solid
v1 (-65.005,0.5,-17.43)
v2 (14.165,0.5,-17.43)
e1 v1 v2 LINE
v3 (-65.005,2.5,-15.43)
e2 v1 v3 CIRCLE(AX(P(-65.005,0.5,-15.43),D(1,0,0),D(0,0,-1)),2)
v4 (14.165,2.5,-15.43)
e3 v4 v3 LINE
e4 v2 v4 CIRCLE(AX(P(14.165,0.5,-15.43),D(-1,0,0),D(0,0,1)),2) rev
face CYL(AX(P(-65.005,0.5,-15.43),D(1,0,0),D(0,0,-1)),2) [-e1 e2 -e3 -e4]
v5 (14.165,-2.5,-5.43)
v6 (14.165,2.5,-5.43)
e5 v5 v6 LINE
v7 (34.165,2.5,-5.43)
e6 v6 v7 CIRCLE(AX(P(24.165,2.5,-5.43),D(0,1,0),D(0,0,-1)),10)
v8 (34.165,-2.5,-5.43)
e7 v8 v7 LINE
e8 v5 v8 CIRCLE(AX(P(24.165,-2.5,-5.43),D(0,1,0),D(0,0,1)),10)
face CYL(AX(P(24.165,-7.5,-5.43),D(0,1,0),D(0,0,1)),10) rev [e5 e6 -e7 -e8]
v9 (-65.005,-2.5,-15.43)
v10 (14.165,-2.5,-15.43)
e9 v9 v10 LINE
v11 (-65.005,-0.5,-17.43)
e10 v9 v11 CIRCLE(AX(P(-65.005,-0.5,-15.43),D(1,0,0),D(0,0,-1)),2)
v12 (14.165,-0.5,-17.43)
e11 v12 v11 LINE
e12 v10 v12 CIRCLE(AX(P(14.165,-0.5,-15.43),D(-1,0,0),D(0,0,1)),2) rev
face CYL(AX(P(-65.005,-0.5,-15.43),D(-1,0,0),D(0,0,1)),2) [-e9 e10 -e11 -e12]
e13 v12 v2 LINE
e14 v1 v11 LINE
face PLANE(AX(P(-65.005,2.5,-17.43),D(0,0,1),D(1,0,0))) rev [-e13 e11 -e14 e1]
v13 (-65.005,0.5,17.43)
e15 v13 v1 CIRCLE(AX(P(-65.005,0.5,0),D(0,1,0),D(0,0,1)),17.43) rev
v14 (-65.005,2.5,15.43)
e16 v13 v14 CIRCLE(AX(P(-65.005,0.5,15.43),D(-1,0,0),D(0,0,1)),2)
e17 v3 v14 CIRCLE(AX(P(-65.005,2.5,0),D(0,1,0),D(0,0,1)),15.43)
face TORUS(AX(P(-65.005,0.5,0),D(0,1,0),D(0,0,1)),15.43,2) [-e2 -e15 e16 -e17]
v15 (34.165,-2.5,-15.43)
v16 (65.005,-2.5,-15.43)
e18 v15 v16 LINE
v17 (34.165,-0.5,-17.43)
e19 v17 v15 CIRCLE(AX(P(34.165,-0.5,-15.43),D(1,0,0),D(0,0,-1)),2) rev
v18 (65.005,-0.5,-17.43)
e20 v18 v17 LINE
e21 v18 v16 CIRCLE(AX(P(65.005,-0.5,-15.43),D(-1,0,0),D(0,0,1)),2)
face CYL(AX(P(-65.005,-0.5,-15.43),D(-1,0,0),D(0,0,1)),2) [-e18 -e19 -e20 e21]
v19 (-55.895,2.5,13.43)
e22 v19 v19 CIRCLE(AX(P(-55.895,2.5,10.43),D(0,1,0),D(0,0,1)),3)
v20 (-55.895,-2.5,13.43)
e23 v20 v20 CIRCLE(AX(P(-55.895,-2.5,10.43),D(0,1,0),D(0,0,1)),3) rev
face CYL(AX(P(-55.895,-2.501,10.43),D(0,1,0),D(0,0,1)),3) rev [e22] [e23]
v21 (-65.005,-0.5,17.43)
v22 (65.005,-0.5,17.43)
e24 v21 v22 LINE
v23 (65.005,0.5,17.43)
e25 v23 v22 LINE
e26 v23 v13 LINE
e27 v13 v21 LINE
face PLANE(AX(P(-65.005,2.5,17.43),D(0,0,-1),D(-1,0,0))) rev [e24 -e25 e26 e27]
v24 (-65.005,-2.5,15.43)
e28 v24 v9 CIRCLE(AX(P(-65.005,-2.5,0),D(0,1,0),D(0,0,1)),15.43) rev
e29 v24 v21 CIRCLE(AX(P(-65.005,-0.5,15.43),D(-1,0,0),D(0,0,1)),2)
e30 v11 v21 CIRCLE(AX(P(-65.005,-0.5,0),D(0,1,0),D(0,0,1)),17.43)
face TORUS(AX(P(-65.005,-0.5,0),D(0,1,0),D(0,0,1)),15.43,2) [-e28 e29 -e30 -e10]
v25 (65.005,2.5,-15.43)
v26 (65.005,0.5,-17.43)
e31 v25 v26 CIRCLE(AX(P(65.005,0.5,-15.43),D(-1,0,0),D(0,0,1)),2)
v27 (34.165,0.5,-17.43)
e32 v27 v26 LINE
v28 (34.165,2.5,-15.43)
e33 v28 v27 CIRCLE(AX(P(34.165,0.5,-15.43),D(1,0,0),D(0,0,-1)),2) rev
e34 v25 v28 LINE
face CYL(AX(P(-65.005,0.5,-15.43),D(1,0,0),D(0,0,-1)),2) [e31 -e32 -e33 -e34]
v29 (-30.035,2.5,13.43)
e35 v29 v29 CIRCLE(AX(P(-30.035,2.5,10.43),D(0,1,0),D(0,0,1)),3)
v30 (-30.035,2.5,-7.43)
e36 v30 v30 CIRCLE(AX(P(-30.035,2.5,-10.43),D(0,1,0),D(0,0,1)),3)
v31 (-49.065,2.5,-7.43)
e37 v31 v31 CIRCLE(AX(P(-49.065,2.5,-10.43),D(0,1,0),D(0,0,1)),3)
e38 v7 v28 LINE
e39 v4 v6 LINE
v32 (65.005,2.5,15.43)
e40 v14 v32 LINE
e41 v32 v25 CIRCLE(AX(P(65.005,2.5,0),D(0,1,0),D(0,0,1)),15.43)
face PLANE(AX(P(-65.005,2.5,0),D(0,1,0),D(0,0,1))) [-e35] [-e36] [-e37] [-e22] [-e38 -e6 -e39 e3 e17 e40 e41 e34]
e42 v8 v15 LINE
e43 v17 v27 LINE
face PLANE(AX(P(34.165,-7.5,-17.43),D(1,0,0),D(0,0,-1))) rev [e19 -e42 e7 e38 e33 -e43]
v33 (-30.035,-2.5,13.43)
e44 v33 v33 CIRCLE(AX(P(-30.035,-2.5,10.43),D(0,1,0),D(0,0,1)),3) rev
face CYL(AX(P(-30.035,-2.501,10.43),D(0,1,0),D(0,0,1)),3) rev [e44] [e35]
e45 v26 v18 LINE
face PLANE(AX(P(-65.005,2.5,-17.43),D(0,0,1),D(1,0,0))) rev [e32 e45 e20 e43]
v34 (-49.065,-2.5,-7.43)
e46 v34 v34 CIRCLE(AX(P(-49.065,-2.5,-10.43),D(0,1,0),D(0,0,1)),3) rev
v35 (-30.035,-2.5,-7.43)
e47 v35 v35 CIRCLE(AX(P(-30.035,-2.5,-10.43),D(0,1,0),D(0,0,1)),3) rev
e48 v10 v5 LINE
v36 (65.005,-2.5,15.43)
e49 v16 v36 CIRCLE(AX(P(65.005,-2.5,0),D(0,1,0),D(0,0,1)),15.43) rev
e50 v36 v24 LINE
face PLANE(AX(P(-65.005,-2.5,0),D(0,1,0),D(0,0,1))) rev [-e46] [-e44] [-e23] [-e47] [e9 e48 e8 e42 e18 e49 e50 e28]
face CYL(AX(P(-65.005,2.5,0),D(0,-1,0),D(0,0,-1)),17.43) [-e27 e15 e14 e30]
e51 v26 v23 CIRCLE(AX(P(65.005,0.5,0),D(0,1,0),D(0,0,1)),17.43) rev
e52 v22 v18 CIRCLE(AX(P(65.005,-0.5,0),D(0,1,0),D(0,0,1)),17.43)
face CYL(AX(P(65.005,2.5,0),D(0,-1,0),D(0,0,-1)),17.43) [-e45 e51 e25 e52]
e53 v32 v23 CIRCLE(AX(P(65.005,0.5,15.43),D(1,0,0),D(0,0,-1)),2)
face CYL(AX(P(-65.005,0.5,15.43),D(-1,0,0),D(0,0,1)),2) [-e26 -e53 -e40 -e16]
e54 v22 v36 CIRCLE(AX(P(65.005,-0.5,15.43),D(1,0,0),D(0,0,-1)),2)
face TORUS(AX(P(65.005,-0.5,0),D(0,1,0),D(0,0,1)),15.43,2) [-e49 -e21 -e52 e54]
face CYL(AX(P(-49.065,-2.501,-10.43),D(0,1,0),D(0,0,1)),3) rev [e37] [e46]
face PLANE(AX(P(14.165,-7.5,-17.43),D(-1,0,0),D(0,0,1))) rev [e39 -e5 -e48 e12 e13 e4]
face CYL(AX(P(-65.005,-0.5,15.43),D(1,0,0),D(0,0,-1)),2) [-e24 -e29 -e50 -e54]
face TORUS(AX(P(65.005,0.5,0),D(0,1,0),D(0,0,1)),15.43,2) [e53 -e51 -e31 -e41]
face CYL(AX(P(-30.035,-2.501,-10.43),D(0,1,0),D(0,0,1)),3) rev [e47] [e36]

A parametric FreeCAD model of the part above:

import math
import FreeCAD as App
import Part
import Sketcher

V = App.Vector
Q = App.Units.Quantity


def edges_at(feature, points):
    """Names of the edges that pass closest to the given points."""
    edges = feature.Shape.Edges
    near = lambda p: min(range(len(edges)), key=lambda i: edges[i].distToShape(Part.Vertex(*p))[0])
    return sorted({f"Edge{near(p) + 1}" for p in points})

doc = App.newDocument("Part")
body = doc.addObject("PartDesign::Body", "Body")

# Sketch on XZ plane
sketch1 = doc.addObject("Sketcher::SketchObject", "Sketch")
body.addObject(sketch1)
sketch1.AttachmentSupport = (doc.XZ_Plane, [""])
sketch1.MapMode = "FlatFace"
sketch1.addGeometry(Part.LineSegment(V(65, -17, 0), V(-65, -17, 0)), False)
sketch1.addGeometry(Part.ArcOfCircle(Part.Circle(V(-65, 0, 0), V(0, 0, 1), 17), math.radians(90), math.radians(270)), False)
sketch1.addGeometry(Part.LineSegment(V(-65, 17, 0), V(65, 17, 0)), False)
sketch1.addGeometry(Part.ArcOfCircle(Part.Circle(V(65, 0, 0), V(0, 0, 1), 17), math.radians(-90), math.radians(90)), False)
sketch1.addConstraint(Sketcher.Constraint("Tangent", 0, 2, 1, 2))
sketch1.addConstraint(Sketcher.Constraint("Tangent", 1, 1, 2, 1))
sketch1.addConstraint(Sketcher.Constraint("Tangent", 2, 2, 3, 2))
sketch1.addConstraint(Sketcher.Constraint("Tangent", 3, 1, 0, 1))
sketch1.addConstraint(Sketcher.Constraint("Horizontal", 0))
sketch1.addConstraint(Sketcher.Constraint("Horizontal", 2))
sketch1.addConstraint(Sketcher.Constraint("Symmetric", 1, 3, 3, 3, -1, 1))
sketch1.addConstraint(Sketcher.Constraint("Radius", 1, Q("17.43 mm")))
sketch1.addConstraint(Sketcher.Constraint("DistanceX", 0, 2, 0, 1, Q("130.01 mm")))
pad1 = doc.addObject("PartDesign::Pad", "Pad")
body.addObject(pad1)
pad1.Profile = sketch1
pad1.Length = 5
pad1.Midplane = True

# Sketch on XZ plane
sketch2 = doc.addObject("Sketcher::SketchObject", "Sketch001")
body.addObject(sketch2)
sketch2.AttachmentSupport = (doc.XZ_Plane, [""])
sketch2.MapMode = "FlatFace"
sketch2.AttachmentOffset = App.Placement(V(0, 0, -2.5), App.Rotation())
sketch2.addGeometry(Part.Circle(V(-49.1, -10.4, 0), V(0, 0, 1), 3), False)
sketch2.addConstraint(Sketcher.Constraint("Diameter", 0, Q("6 mm")))
sketch2.addConstraint(Sketcher.Constraint("DistanceY", 0, 3, -1, 1, Q("10.43 mm")))
sketch2.addConstraint(Sketcher.Constraint("DistanceX", 0, 3, -1, 1, Q("49.065 mm")))
pocket1 = doc.addObject("PartDesign::Pocket", "Pocket")
body.addObject(pocket1)
pocket1.Profile = sketch2
pocket1.Type = "UpToFirst"
pocket1.Reversed = True

# Sketch on XZ plane
sketch3 = doc.addObject("Sketcher::SketchObject", "Sketch002")
body.addObject(sketch3)
sketch3.AttachmentSupport = (doc.XZ_Plane, [""])
sketch3.MapMode = "FlatFace"
sketch3.AttachmentOffset = App.Placement(V(0, 0, -2.5), App.Rotation())
sketch3.addGeometry(Part.Circle(V(-30, -10.4, 0), V(0, 0, 1), 3), False)
sketch3.addConstraint(Sketcher.Constraint("Diameter", 0, Q("6 mm")))
sketch3.addConstraint(Sketcher.Constraint("DistanceY", 0, 3, -1, 1, Q("10.43 mm")))
sketch3.addConstraint(Sketcher.Constraint("DistanceX", 0, 3, -1, 1, Q("30.035 mm")))
pocket2 = doc.addObject("PartDesign::Pocket", "Pocket001")
body.addObject(pocket2)
pocket2.Profile = sketch3
pocket2.Type = "UpToFirst"
pocket2.Reversed = True

# Sketch on XZ plane
sketch4 = doc.addObject("Sketcher::SketchObject", "Sketch003")
body.addObject(sketch4)
sketch4.AttachmentSupport = (doc.XZ_Plane, [""])
sketch4.MapMode = "FlatFace"
sketch4.AttachmentOffset = App.Placement(V(0, 0, -2.5), App.Rotation())
sketch4.addGeometry(Part.Circle(V(-55.9, 10.4, 0), V(0, 0, 1), 3), False)
sketch4.addConstraint(Sketcher.Constraint("Diameter", 0, Q("6 mm")))
sketch4.addConstraint(Sketcher.Constraint("DistanceY", -1, 1, 0, 3, Q("10.43 mm")))
sketch4.addConstraint(Sketcher.Constraint("DistanceX", 0, 3, -1, 1, Q("55.895 mm")))
pocket3 = doc.addObject("PartDesign::Pocket", "Pocket002")
body.addObject(pocket3)
pocket3.Profile = sketch4
pocket3.Type = "UpToFirst"
pocket3.Reversed = True

# Sketch on XZ plane
sketch5 = doc.addObject("Sketcher::SketchObject", "Sketch004")
body.addObject(sketch5)
sketch5.AttachmentSupport = (doc.XZ_Plane, [""])
sketch5.MapMode = "FlatFace"
sketch5.AttachmentOffset = App.Placement(V(0, 0, -2.5), App.Rotation())
sketch5.addGeometry(Part.Circle(V(-30, 10.4, 0), V(0, 0, 1), 3), False)
sketch5.addConstraint(Sketcher.Constraint("Diameter", 0, Q("6 mm")))
sketch5.addConstraint(Sketcher.Constraint("DistanceY", -1, 1, 0, 3, Q("10.43 mm")))
sketch5.addConstraint(Sketcher.Constraint("DistanceX", 0, 3, -1, 1, Q("30.035 mm")))
pocket4 = doc.addObject("PartDesign::Pocket", "Pocket003")
body.addObject(pocket4)
pocket4.Profile = sketch5
pocket4.Type = "UpToFirst"
pocket4.Reversed = True
doc.recompute()

fillet = doc.addObject("PartDesign::Fillet", "Fillet")
body.addObject(fillet)
fillet.Base = (pocket4, edges_at(pocket4, [
    (82.435, 2.5, 0),
    (0, 2.5, -17.43),
    (-82.435, 2.5, 0),
    (0, -2.5, -17.43),
    (82.435, -2.5, 0),
    (0, -2.5, 17.43),
    (-82.435, -2.5, 0),
    (0, 2.5, 17.43),
]))
fillet.Radius = 2

# Sketch on XZ plane
sketch6 = doc.addObject("Sketcher::SketchObject", "Sketch005")
body.addObject(sketch6)
sketch6.AttachmentSupport = (doc.XZ_Plane, [""])
sketch6.MapMode = "FlatFace"
sketch6.AttachmentOffset = App.Placement(V(0, 0, -2.5), App.Rotation())
sketch6.addGeometry(Part.LineSegment(V(34, -5, 0), V(34, -17, 0)), False)
sketch6.addGeometry(Part.LineSegment(V(34, -17, 0), V(14, -17, 0)), False)
sketch6.addGeometry(Part.LineSegment(V(14, -17, 0), V(14, -5, 0)), False)
sketch6.addGeometry(Part.ArcOfCircle(Part.Circle(V(24, -5, 0), V(0, 0, 1), 10), math.radians(0), math.radians(180)), False)
sketch6.addConstraint(Sketcher.Constraint("Coincident", 0, 2, 1, 1))
sketch6.addConstraint(Sketcher.Constraint("Coincident", 1, 2, 2, 1))
sketch6.addConstraint(Sketcher.Constraint("Tangent", 2, 2, 3, 2))
sketch6.addConstraint(Sketcher.Constraint("Tangent", 3, 1, 0, 1))
sketch6.addConstraint(Sketcher.Constraint("Vertical", 0))
sketch6.addConstraint(Sketcher.Constraint("Horizontal", 1))
sketch6.addConstraint(Sketcher.Constraint("Vertical", 2))
sketch6.addConstraint(Sketcher.Constraint("Radius", 3, Q("10 mm")))
sketch6.addConstraint(Sketcher.Constraint("DistanceY", 0, 2, 0, 1, Q("12 mm")))
sketch6.addConstraint(Sketcher.Constraint("DistanceY", 3, 3, -1, 1, Q("5.43 mm")))
sketch6.addConstraint(Sketcher.Constraint("DistanceX", -1, 1, 3, 3, Q("24.165 mm")))
pocket5 = doc.addObject("PartDesign::Pocket", "Pocket004")
body.addObject(pocket5)
pocket5.Profile = sketch6
pocket5.Length = 10
pocket5.Reversed = True

doc.recompute()
